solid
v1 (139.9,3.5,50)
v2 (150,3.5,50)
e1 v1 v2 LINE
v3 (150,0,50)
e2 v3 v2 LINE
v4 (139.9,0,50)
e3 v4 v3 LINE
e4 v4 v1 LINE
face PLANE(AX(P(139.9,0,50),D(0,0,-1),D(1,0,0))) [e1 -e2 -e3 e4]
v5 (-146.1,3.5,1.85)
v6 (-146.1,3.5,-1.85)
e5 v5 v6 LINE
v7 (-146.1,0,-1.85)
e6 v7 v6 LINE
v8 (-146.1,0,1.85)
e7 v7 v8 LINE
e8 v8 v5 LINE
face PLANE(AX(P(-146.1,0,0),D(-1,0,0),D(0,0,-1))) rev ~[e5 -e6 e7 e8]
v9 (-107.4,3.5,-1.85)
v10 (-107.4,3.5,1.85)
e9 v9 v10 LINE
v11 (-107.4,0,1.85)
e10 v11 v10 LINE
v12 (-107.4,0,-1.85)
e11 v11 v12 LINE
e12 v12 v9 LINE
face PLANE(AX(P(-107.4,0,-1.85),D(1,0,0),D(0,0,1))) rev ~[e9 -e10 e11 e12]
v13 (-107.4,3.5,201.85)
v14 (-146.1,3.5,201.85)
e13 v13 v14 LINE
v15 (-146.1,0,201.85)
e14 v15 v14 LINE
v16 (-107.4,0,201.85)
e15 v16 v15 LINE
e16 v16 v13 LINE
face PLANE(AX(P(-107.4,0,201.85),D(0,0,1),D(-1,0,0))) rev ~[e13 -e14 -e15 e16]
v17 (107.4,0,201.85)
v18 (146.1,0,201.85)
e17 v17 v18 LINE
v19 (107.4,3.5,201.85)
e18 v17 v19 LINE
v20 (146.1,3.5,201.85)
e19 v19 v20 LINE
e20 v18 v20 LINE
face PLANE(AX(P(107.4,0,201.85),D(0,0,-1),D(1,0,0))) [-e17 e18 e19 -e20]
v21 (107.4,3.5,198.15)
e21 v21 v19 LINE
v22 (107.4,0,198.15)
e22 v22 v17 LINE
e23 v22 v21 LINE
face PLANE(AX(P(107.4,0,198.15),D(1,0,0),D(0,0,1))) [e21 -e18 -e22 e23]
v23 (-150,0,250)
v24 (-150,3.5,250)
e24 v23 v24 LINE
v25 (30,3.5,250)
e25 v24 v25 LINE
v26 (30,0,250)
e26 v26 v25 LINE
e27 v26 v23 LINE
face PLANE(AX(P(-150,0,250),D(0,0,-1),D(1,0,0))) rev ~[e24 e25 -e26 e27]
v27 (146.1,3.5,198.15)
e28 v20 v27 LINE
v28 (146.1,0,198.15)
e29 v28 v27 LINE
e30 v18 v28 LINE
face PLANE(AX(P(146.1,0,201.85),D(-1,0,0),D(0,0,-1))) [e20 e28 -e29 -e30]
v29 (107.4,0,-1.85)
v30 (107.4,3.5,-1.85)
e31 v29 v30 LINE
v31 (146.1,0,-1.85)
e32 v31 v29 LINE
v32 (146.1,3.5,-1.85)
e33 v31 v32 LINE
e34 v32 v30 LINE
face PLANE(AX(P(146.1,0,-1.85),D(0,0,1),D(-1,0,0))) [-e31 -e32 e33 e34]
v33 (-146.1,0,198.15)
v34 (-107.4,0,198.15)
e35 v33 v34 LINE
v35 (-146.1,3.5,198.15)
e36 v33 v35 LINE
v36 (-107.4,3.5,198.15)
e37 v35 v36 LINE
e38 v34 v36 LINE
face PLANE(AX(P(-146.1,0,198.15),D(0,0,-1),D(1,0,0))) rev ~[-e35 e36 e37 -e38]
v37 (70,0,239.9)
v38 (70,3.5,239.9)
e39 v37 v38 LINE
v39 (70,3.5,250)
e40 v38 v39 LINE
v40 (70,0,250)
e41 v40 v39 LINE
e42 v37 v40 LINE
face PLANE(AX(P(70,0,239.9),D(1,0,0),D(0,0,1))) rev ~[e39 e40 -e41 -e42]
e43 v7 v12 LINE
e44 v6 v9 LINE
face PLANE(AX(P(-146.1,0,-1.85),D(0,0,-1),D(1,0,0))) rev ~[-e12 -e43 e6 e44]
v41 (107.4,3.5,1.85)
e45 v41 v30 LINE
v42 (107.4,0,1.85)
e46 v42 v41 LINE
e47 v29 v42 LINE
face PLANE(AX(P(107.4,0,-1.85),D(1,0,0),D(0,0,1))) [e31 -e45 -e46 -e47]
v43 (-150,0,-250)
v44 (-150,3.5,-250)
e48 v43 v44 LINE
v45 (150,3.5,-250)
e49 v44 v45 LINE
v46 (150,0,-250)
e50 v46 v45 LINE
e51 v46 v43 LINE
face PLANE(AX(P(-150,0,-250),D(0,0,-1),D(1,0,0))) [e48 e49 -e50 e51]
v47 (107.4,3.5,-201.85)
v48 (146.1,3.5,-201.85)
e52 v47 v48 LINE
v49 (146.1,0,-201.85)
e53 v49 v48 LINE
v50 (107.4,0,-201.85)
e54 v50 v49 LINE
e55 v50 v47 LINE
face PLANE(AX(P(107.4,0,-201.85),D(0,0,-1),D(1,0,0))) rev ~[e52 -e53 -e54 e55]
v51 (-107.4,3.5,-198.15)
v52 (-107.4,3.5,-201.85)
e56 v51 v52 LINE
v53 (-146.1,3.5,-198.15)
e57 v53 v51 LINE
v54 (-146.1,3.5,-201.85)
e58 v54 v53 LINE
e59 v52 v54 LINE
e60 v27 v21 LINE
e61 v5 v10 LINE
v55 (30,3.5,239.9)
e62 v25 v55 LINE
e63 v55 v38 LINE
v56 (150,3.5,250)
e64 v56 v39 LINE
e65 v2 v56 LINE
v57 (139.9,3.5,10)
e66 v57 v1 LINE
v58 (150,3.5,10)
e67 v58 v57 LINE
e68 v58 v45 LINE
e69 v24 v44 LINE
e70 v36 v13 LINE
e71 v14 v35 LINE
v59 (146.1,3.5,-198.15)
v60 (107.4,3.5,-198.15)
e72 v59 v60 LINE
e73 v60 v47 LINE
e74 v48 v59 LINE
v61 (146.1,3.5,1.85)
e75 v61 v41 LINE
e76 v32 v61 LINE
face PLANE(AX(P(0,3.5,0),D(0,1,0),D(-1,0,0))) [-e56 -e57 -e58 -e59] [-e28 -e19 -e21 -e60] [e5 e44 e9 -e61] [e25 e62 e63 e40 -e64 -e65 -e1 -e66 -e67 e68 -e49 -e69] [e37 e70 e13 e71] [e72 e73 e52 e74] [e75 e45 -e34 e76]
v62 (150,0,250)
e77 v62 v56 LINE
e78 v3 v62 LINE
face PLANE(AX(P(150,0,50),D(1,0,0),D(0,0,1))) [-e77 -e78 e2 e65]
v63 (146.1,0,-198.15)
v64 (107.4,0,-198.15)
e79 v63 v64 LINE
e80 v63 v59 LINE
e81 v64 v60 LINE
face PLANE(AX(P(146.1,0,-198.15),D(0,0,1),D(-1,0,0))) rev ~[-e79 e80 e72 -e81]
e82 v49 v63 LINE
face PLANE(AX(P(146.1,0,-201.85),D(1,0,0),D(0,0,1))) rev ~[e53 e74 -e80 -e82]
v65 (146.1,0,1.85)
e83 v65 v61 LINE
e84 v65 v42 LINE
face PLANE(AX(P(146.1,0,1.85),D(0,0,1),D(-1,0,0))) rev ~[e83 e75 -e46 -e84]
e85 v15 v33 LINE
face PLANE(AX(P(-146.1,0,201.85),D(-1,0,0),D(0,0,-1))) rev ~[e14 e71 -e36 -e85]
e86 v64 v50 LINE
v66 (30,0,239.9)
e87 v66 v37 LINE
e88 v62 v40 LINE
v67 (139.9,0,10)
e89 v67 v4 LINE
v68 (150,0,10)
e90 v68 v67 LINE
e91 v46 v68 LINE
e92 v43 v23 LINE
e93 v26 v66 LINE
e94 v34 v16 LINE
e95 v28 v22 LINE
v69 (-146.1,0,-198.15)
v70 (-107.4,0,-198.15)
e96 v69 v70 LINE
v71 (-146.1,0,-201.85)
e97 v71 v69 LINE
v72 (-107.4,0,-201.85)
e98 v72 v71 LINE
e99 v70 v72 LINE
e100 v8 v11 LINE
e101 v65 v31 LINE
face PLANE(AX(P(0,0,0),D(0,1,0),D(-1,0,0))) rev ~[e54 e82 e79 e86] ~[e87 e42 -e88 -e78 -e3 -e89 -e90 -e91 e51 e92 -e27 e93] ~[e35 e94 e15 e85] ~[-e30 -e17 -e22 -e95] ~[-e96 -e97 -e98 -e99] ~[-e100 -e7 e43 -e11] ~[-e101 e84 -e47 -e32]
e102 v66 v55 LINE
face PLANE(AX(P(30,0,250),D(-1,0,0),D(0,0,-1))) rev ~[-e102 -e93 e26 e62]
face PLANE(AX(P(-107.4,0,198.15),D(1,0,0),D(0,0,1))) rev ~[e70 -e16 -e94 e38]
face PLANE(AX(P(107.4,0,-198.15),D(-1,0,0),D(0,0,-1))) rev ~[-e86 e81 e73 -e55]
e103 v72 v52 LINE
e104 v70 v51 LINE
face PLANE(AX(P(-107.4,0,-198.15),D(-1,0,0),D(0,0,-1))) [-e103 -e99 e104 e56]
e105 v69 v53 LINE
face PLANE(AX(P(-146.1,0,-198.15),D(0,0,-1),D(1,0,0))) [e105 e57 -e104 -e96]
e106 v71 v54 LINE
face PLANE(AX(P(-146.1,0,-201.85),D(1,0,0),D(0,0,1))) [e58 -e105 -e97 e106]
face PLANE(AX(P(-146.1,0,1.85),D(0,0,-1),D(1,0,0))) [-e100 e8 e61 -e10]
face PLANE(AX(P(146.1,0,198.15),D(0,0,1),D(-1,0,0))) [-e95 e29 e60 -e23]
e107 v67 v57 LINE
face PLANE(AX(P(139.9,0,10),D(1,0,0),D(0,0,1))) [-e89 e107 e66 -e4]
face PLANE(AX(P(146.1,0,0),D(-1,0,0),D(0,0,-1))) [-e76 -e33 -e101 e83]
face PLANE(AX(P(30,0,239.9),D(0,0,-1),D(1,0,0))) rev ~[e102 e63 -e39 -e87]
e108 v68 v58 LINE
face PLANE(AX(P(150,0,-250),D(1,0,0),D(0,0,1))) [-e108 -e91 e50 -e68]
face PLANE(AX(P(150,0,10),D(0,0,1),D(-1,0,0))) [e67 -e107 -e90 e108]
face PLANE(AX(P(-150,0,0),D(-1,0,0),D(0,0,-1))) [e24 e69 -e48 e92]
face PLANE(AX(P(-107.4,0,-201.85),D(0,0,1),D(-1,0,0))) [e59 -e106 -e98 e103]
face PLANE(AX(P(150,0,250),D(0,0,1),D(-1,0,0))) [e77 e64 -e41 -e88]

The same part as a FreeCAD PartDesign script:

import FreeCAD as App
import Part
import Sketcher

V = App.Vector

doc = App.newDocument("Part")
body = doc.addObject("PartDesign::Body", "Body")

sketch1 = doc.addObject("Sketcher::SketchObject", "Sketch")
body.addObject(sketch1)
sketch1.AttachmentSupport = (doc.XZ_Plane, [""])
sketch1.MapMode = "FlatFace"
sketch1.addGeometry(Part.LineSegment(V(-150, -250, 0), V(-150, 250, 0)), False)
sketch1.addGeometry(Part.LineSegment(V(-150, 250, 0), V(30, 250, 0)), False)
sketch1.addGeometry(Part.LineSegment(V(30, 250, 0), V(30, 239.9, 0)), False)
sketch1.addGeometry(Part.LineSegment(V(30, 239.9, 0), V(70, 239.9, 0)), False)
sketch1.addGeometry(Part.LineSegment(V(70, 239.9, 0), V(70, 250, 0)), False)
sketch1.addGeometry(Part.LineSegment(V(70, 250, 0), V(150, 250, 0)), False)
sketch1.addGeometry(Part.LineSegment(V(150, 250, 0), V(150, 50, 0)), False)
sketch1.addGeometry(Part.LineSegment(V(150, 50, 0), V(139.9, 50, 0)), False)
sketch1.addGeometry(Part.LineSegment(V(139.9, 50, 0), V(139.9, 10, 0)), False)
sketch1.addGeometry(Part.LineSegment(V(139.9, 10, 0), V(150, 10, 0)), False)
sketch1.addGeometry(Part.LineSegment(V(150, 10, 0), V(150, -250, 0)), False)
sketch1.addGeometry(Part.LineSegment(V(150, -250, 0), V(-150, -250, 0)), False)
sketch1.addGeometry(Part.LineSegment(V(-107.4, -1.9, 0), V(-107.4, 1.9, 0)), False)
sketch1.addGeometry(Part.LineSegment(V(-107.4, 1.9, 0), V(-146.1, 1.9, 0)), False)
sketch1.addGeometry(Part.LineSegment(V(-146.1, 1.9, 0), V(-146.1, -1.9, 0)), False)
sketch1.addGeometry(Part.LineSegment(V(-146.1, -1.9, 0), V(-107.4, -1.9, 0)), False)
sketch1.addGeometry(Part.LineSegment(V(-107.4, -201.8, 0), V(-107.4, -198.2, 0)), False)
sketch1.addGeometry(Part.LineSegment(V(-107.4, -198.2, 0), V(-146.1, -198.2, 0)), False)
sketch1.addGeometry(Part.LineSegment(V(-146.1, -198.2, 0), V(-146.1, -201.8, 0)), False)
sketch1.addGeometry(Part.LineSegment(V(-146.1, -201.8, 0), V(-107.4, -201.8, 0)), False)
sketch1.addGeometry(Part.LineSegment(V(146.1, -1.9, 0), V(146.1, 1.9, 0)), False)
sketch1.addGeometry(Part.LineSegment(V(146.1, 1.9, 0), V(107.4, 1.9, 0)), False)
sketch1.addGeometry(Part.LineSegment(V(107.4, 1.9, 0), V(107.4, -1.9, 0)), False)
sketch1.addGeometry(Part.LineSegment(V(107.4, -1.9, 0), V(146.1, -1.9, 0)), False)
sketch1.addGeometry(Part.LineSegment(V(146.1, -198.2, 0), V(107.4, -198.2, 0)), False)
sketch1.addGeometry(Part.LineSegment(V(107.4, -198.2, 0), V(107.4, -201.8, 0)), False)
sketch1.addGeometry(Part.LineSegment(V(107.4, -201.8, 0), V(146.1, -201.8, 0)), False)
sketch1.addGeometry(Part.LineSegment(V(146.1, -201.8, 0), V(146.1, -198.2, 0)), False)
sketch1.addGeometry(Part.LineSegment(V(-107.4, 198.2, 0), V(-107.4, 201.8, 0)), False)
sketch1.addGeometry(Part.LineSegment(V(-107.4, 201.8, 0), V(-146.1, 201.8, 0)), False)
sketch1.addGeometry(Part.LineSegment(V(-146.1, 201.8, 0), V(-146.1, 198.2, 0)), False)
sketch1.addGeometry(Part.LineSegment(V(-146.1, 198.2, 0), V(-107.4, 198.2, 0)), False)
sketch1.addGeometry(Part.LineSegment(V(107.4, 201.8, 0), V(107.4, 198.2, 0)), False)
sketch1.addGeometry(Part.LineSegment(V(107.4, 198.2, 0), V(146.1, 198.2, 0)), False)
sketch1.addGeometry(Part.LineSegment(V(146.1, 198.2, 0), V(146.1, 201.8, 0)), False)
sketch1.addGeometry(Part.LineSegment(V(146.1, 201.8, 0), V(107.4, 201.8, 0)), False)
sketch1.addConstraint(Sketcher.Constraint("Coincident", 0, 2, 1, 1))
sketch1.addConstraint(Sketcher.Constraint("Coincident", 1, 2, 2, 1))
sketch1.addConstraint(Sketcher.Constraint("Coincident", 2, 2, 3, 1))
sketch1.addConstraint(Sketcher.Constraint("Coincident", 3, 2, 4, 1))
sketch1.addConstraint(Sketcher.Constraint("Coincident", 4, 2, 5, 1))
sketch1.addConstraint(Sketcher.Constraint("Coincident", 5, 2, 6, 1))
sketch1.addConstraint(Sketcher.Constraint("Coincident", 6, 2, 7, 1))
sketch1.addConstraint(Sketcher.Constraint("Coincident", 7, 2, 8, 1))
sketch1.addConstraint(Sketcher.Constraint("Coincident", 8, 2, 9, 1))
sketch1.addConstraint(Sketcher.Constraint("Coincident", 9, 2, 10, 1))
sketch1.addConstraint(Sketcher.Constraint("Coincident", 10, 2, 11, 1))
sketch1.addConstraint(Sketcher.Constraint("Coincident", 11, 2, 0, 1))
sketch1.addConstraint(Sketcher.Constraint("Coincident", 12, 2, 13, 1))
sketch1.addConstraint(Sketcher.Constraint("Coincident", 13, 2, 14, 1))
sketch1.addConstraint(Sketcher.Constraint("Coincident", 14, 2, 15, 1))
sketch1.addConstraint(Sketcher.Constraint("Coincident", 15, 2, 12, 1))
sketch1.addConstraint(Sketcher.Constraint("Coincident", 16, 2, 17, 1))
sketch1.addConstraint(Sketcher.Constraint("Coincident", 17, 2, 18, 1))
sketch1.addConstraint(Sketcher.Constraint("Coincident", 18, 2, 19, 1))
sketch1.addConstraint(Sketcher.Constraint("Coincident", 19, 2, 16, 1))
sketch1.addConstraint(Sketcher.Constraint("Coincident", 20, 2, 21, 1))
sketch1.addConstraint(Sketcher.Constraint("Coincident", 21, 2, 22, 1))
sketch1.addConstraint(Sketcher.Constraint("Coincident", 22, 2, 23, 1))
sketch1.addConstraint(Sketcher.Constraint("Coincident", 23, 2, 20, 1))
sketch1.addConstraint(Sketcher.Constraint("Coincident", 24, 2, 25, 1))
sketch1.addConstraint(Sketcher.Constraint("Coincident", 25, 2, 26, 1))
sketch1.addConstraint(Sketcher.Constraint("Coincident", 26, 2, 27, 1))
sketch1.addConstraint(Sketcher.Constraint("Coincident", 27, 2, 24, 1))
sketch1.addConstraint(Sketcher.Constraint("Coincident", 28, 2, 29, 1))
sketch1.addConstraint(Sketcher.Constraint("Coincident", 29, 2, 30, 1))
sketch1.addConstraint(Sketcher.Constraint("Coincident", 30, 2, 31, 1))
sketch1.addConstraint(Sketcher.Constraint("Coincident", 31, 2, 28, 1))
sketch1.addConstraint(Sketcher.Constraint("Coincident", 32, 2, 33, 1))
sketch1.addConstraint(Sketcher.Constraint("Coincident", 33, 2, 34, 1))
sketch1.addConstraint(Sketcher.Constraint("Coincident", 34, 2, 35, 1))
sketch1.addConstraint(Sketcher.Constraint("Coincident", 35, 2, 32, 1))
sketch1.addConstraint(Sketcher.Constraint("Vertical", 0))
sketch1.addConstraint(Sketcher.Constraint("Horizontal", 1))
sketch1.addConstraint(Sketcher.Constraint("Vertical", 2))
sketch1.addConstraint(Sketcher.Constraint("Horizontal", 3))
sketch1.addConstraint(Sketcher.Constraint("Vertical", 4))
sketch1.addConstraint(Sketcher.Constraint("Horizontal", 5))
sketch1.addConstraint(Sketcher.Constraint("Vertical", 6))
sketch1.addConstraint(Sketcher.Constraint("Horizontal", 7))
sketch1.addConstraint(Sketcher.Constraint("Vertical", 8))
sketch1.addConstraint(Sketcher.Constraint("Horizontal", 9))
sketch1.addConstraint(Sketcher.Constraint("Vertical", 10))
sketch1.addConstraint(Sketcher.Constraint("Horizontal", 11))
sketch1.addConstraint(Sketcher.Constraint("Vertical", 12))
sketch1.addConstraint(Sketcher.Constraint("Horizontal", 13))
sketch1.addConstraint(Sketcher.Constraint("Vertical", 14))
sketch1.addConstraint(Sketcher.Constraint("Horizontal", 15))
sketch1.addConstraint(Sketcher.Constraint("Vertical", 16))
sketch1.addConstraint(Sketcher.Constraint("Horizontal", 17))
sketch1.addConstraint(Sketcher.Constraint("Vertical", 18))
sketch1.addConstraint(Sketcher.Constraint("Horizontal", 19))
sketch1.addConstraint(Sketcher.Constraint("Vertical", 20))
sketch1.addConstraint(Sketcher.Constraint("Horizontal", 21))
sketch1.addConstraint(Sketcher.Constraint("Vertical", 22))
sketch1.addConstraint(Sketcher.Constraint("Horizontal", 23))
sketch1.addConstraint(Sketcher.Constraint("Horizontal", 24))
sketch1.addConstraint(Sketcher.Constraint("Vertical", 25))
sketch1.addConstraint(Sketcher.Constraint("Horizontal", 26))
sketch1.addConstraint(Sketcher.Constraint("Vertical", 27))
sketch1.addConstraint(Sketcher.Constraint("Vertical", 28))
sketch1.addConstraint(Sketcher.Constraint("Horizontal", 29))
sketch1.addConstraint(Sketcher.Constraint("Vertical", 30))
sketch1.addConstraint(Sketcher.Constraint("Horizontal", 31))
sketch1.addConstraint(Sketcher.Constraint("Vertical", 32))
sketch1.addConstraint(Sketcher.Constraint("Horizontal", 33))
sketch1.addConstraint(Sketcher.Constraint("Vertical", 34))
sketch1.addConstraint(Sketcher.Constraint("Horizontal", 35))
sketch1.addConstraint(Sketcher.Constraint("Symmetric", 0, 2, 10, 2, -1, 1))
sketch1.addConstraint(Sketcher.Constraint("Symmetric", 5, 2, 11, 2, -1, 1))
sketch1.addConstraint(Sketcher.Constraint("Symmetric", 14, 2, 20, 2, -1, 1))
sketch1.addConstraint(Sketcher.Constraint("Symmetric", 12, 2, 22, 2, -1, 1))
sketch1.addConstraint(Sketcher.Constraint("Symmetric", 25, 2, 28, 2, -1, 1))
sketch1.addConstraint(Sketcher.Constraint("Symmetric", 27, 2, 30, 2, -1, 1))
sketch1.addConstraint(Sketcher.Constraint("Symmetric", 16, 2, 32, 2, -1, 1))
sketch1.addConstraint(Sketcher.Constraint("Symmetric", 18, 2, 34, 2, -1, 1))
sketch1.addConstraint(Sketcher.Constraint("Symmetric", 16, 2, 24, 2, -2))
sketch1.addConstraint(Sketcher.Constraint("Symmetric", 18, 2, 26, 2, -2))
sketch1.addConstraint(Sketcher.Constraint("Horizontal", 13, 2, 20, 2))
sketch1.addConstraint(Sketcher.Constraint("Vertical", 15, 2, 16, 2))
sketch1.addConstraint(Sketcher.Constraint("Vertical", 14, 2, 17, 2))
sketch1.addConstraint(Sketcher.Constraint("Equal", 9, 2))
sketch1.addConstraint(Sketcher.Constraint("Equal", 3, 8))
sketch1.addConstraint(Sketcher.Constraint("Equal", 14, 16))
sketch1.addConstraint(Sketcher.Constraint("DistanceX", 3, 1, 3, 2, 40.0))
sketch1.addConstraint(Sketcher.Constraint("DistanceX", 7, 2, 7, 1, 10.1))
sketch1.addConstraint(Sketcher.Constraint("DistanceX", 13, 2, 13, 1, 38.7))
sketch1.addConstraint(Sketcher.Constraint("DistanceY", 12, 1, 12, 2, 3.7))
sketch1.addConstraint(Sketcher.Constraint("DistanceX", 0, 2, -1, 1, 150.0))
sketch1.addConstraint(Sketcher.Constraint("DistanceY", -1, 1, 0, 2, 250.0))
sketch1.addConstraint(Sketcher.Constraint("DistanceX", -1, 1, 1, 2, 30.0))
sketch1.addConstraint(Sketcher.Constraint("DistanceY", -1, 1, 6, 2, 50.0))
sketch1.addConstraint(Sketcher.Constraint("DistanceY", 11, 2, 18, 2, 48.15))
sketch1.addConstraint(Sketcher.Constraint("DistanceX", 13, 2, 8, 2, 286.0))
pad1 = doc.addObject("PartDesign::Pad", "Pad")
body.addObject(pad1)
pad1.Profile = sketch1
pad1.Length = 3.5
pad1.Reversed = True

doc.recompute()
